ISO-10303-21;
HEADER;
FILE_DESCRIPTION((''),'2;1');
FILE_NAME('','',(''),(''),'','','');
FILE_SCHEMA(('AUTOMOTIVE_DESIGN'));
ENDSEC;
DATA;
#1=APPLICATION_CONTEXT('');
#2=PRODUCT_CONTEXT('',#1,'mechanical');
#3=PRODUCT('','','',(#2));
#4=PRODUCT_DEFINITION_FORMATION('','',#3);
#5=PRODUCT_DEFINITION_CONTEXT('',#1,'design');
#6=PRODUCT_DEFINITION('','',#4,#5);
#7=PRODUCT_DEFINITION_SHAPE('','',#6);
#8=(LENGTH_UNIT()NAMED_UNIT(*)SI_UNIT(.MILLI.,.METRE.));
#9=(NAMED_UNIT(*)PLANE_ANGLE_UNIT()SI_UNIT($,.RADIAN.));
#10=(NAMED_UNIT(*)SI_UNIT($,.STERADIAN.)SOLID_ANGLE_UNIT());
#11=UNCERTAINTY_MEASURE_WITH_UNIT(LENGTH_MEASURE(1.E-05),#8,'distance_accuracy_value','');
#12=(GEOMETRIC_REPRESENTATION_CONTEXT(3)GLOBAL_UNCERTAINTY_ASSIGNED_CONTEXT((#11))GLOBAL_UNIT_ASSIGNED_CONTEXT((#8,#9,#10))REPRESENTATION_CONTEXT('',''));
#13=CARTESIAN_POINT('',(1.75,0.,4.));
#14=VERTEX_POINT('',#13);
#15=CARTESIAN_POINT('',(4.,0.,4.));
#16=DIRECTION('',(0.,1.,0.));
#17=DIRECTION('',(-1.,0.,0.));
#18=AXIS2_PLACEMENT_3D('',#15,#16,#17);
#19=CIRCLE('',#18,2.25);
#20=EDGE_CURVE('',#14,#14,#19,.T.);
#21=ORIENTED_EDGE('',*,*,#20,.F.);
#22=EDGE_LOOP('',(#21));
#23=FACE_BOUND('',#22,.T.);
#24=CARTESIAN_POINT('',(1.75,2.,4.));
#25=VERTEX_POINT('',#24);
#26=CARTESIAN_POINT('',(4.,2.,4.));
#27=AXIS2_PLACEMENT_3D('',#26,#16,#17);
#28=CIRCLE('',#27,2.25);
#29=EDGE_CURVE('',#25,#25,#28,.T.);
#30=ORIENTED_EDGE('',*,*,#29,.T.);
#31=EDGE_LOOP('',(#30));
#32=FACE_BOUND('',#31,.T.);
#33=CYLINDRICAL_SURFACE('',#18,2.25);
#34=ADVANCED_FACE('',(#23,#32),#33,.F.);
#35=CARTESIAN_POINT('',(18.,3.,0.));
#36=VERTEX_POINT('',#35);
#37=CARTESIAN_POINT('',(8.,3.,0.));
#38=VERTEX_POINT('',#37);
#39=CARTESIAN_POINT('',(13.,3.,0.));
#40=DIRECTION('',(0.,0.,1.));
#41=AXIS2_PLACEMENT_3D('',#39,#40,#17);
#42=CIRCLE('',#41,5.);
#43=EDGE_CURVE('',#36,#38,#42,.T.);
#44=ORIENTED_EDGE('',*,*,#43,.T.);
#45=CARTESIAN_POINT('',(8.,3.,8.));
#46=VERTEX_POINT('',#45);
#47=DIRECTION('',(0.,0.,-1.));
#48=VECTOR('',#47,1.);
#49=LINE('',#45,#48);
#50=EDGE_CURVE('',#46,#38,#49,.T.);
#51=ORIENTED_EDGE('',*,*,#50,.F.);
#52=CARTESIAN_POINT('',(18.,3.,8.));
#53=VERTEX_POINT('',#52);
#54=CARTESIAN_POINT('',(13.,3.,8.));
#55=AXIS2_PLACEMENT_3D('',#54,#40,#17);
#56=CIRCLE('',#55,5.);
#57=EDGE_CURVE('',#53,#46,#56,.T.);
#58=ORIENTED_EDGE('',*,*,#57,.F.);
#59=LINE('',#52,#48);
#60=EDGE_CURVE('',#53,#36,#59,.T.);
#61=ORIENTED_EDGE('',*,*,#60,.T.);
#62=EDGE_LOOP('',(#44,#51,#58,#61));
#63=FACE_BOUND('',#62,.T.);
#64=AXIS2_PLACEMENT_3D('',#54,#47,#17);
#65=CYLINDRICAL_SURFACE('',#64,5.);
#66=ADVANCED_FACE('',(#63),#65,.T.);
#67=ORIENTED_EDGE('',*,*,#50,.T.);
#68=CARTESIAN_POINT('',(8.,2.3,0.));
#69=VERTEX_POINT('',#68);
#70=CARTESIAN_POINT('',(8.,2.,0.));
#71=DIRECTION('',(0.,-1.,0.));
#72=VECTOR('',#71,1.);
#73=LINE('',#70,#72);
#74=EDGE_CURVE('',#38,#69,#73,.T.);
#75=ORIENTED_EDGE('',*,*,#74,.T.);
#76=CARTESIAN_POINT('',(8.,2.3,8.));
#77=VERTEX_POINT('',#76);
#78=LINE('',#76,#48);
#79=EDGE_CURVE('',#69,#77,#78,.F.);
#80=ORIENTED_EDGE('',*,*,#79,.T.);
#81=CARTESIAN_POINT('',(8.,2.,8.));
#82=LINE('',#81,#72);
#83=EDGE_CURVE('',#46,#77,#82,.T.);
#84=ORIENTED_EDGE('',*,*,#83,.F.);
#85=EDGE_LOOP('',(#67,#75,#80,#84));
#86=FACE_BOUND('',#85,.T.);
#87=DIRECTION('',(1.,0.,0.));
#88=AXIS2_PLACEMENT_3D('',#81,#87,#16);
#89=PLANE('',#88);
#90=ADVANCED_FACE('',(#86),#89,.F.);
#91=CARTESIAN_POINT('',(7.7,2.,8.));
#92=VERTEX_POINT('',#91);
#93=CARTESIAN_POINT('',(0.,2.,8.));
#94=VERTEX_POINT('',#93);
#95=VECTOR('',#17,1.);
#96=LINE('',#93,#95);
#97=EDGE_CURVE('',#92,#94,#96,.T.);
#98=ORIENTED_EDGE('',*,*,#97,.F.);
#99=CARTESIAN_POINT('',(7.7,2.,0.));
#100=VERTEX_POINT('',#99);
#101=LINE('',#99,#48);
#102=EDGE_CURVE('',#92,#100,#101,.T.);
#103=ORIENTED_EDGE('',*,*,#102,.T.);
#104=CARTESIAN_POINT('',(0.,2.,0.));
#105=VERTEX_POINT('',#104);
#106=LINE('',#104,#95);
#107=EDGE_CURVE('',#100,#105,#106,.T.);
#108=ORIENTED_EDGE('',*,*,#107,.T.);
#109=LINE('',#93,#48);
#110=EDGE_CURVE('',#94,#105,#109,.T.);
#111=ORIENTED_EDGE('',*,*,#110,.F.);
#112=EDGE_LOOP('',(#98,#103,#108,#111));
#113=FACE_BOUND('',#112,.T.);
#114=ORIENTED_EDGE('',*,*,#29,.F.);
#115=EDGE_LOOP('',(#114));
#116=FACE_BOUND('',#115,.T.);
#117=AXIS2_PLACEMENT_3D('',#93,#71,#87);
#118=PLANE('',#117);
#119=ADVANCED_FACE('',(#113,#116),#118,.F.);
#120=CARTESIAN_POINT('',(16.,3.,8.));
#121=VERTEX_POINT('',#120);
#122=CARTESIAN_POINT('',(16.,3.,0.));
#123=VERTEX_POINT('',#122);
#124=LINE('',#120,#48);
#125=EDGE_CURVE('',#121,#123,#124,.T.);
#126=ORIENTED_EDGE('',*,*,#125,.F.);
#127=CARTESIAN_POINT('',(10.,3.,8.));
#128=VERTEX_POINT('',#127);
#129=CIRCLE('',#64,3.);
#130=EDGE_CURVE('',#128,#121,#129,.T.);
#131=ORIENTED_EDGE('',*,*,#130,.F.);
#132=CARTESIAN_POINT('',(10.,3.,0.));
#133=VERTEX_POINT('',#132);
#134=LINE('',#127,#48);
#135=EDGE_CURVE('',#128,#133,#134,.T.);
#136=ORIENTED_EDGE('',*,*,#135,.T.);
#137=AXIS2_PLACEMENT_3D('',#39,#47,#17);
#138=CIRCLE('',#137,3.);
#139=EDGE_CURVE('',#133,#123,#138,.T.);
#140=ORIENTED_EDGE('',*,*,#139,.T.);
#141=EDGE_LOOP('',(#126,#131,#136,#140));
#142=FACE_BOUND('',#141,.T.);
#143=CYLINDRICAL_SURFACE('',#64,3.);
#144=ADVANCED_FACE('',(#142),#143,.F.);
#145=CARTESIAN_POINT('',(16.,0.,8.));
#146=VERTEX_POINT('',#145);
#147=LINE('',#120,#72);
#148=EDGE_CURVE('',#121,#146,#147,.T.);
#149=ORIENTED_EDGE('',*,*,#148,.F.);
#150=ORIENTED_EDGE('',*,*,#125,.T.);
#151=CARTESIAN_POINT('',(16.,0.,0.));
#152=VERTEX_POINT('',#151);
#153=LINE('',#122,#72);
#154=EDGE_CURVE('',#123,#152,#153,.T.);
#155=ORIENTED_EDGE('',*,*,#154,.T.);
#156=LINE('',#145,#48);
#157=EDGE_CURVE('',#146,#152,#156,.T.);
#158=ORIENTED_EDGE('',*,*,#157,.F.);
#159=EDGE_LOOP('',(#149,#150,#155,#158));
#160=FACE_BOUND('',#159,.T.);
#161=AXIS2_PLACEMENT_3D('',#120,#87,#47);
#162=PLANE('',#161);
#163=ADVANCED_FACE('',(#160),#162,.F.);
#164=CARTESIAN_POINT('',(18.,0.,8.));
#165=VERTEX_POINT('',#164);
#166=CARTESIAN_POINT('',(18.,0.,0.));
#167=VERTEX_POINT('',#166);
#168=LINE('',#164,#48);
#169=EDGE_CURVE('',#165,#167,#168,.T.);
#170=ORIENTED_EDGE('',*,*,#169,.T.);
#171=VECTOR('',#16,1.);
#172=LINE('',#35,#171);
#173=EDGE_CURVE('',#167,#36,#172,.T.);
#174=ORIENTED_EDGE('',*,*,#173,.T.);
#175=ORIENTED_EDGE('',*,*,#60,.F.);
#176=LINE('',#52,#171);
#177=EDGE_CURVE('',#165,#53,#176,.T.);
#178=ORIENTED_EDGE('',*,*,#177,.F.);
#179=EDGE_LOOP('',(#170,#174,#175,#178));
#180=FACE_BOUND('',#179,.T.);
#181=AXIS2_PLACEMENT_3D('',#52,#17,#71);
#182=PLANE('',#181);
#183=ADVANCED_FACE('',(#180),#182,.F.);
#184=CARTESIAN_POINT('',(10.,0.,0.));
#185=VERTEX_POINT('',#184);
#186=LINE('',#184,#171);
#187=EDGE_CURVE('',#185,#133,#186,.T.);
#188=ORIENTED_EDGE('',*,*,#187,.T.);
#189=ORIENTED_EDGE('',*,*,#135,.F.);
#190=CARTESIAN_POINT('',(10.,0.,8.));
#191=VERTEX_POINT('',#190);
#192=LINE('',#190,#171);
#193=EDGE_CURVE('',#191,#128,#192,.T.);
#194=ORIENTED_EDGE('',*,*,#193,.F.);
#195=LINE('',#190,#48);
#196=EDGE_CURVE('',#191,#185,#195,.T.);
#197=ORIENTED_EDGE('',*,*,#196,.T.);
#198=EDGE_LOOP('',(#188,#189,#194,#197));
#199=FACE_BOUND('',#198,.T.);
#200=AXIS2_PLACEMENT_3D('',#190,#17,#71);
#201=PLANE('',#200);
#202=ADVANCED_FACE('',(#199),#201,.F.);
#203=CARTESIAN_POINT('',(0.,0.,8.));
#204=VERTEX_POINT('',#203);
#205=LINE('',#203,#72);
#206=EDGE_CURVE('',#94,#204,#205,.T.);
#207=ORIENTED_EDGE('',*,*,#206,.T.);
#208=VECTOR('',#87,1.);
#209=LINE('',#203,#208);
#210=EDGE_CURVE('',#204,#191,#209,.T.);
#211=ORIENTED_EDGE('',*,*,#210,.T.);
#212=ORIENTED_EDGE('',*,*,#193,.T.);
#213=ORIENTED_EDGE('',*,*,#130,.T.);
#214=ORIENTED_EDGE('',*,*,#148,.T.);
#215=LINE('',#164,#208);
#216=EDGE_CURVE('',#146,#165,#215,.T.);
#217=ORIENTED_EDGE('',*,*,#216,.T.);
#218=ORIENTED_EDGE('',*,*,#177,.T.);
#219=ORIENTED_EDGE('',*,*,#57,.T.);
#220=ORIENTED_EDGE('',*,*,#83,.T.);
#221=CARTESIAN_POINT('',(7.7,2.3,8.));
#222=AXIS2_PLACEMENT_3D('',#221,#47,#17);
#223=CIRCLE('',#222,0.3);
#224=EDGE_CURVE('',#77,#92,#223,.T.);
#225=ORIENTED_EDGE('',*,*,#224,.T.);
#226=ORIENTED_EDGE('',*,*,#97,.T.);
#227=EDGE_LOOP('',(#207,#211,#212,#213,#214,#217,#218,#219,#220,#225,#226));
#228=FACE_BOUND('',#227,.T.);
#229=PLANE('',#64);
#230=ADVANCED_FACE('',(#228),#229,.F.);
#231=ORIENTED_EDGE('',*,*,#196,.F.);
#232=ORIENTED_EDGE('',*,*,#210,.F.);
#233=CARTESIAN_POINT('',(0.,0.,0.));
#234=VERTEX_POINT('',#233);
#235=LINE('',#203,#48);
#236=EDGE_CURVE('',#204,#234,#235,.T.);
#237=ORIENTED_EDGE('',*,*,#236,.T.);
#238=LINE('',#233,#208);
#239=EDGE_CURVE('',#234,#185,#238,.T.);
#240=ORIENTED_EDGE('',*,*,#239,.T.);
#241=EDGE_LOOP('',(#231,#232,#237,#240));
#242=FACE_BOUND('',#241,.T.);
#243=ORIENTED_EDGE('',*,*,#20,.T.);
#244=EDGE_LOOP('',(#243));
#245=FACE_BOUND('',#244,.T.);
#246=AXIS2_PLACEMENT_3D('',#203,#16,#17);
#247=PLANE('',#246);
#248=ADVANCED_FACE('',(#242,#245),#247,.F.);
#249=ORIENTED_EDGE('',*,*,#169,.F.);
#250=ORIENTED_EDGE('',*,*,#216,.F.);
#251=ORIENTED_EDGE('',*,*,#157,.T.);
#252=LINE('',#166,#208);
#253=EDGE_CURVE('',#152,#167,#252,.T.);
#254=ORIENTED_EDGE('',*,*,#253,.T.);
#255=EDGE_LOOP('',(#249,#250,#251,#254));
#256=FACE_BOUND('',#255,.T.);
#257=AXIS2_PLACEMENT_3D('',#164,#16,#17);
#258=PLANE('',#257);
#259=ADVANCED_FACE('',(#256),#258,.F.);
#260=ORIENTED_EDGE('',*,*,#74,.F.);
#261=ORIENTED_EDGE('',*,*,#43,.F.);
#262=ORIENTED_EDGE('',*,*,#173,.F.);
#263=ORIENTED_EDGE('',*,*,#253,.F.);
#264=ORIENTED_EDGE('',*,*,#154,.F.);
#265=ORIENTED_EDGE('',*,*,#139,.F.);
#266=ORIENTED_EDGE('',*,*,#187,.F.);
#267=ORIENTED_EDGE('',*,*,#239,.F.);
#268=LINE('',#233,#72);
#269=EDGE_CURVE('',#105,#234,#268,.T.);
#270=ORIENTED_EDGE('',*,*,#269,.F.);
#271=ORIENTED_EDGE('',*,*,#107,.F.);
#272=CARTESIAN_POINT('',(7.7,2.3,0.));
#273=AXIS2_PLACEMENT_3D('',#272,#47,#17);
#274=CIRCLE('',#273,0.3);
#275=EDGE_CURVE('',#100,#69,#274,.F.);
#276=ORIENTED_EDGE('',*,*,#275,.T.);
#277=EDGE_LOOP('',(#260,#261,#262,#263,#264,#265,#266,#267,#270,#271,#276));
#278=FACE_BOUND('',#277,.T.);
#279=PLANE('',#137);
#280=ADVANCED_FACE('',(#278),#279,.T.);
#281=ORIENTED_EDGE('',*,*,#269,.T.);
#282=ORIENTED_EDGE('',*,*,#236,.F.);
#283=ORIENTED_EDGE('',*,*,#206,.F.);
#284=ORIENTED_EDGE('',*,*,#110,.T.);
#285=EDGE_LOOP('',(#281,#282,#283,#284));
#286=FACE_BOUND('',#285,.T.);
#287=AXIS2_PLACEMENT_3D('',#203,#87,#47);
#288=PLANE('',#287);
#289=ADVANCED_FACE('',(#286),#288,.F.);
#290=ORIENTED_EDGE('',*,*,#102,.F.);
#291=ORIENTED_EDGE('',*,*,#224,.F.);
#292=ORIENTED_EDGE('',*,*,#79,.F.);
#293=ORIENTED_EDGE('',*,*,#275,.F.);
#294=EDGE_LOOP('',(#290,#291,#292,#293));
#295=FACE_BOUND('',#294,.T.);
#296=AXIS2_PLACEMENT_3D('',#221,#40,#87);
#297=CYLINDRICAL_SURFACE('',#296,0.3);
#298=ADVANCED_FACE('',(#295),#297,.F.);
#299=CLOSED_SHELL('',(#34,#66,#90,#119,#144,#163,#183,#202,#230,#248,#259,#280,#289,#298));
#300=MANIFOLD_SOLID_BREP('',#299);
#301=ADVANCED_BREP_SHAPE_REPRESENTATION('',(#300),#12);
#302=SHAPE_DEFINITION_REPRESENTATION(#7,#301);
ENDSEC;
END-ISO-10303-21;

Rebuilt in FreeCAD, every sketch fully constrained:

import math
import FreeCAD as App
import Part
import Sketcher

V = App.Vector


def edges_at(feature, points):
    """Names of the edges that pass closest to the given points."""
    edges = feature.Shape.Edges
    near = lambda p: min(range(len(edges)), key=lambda i: edges[i].distToShape(Part.Vertex(*p))[0])
    return sorted({f"Edge{near(p) + 1}" for p in points})

doc = App.newDocument("Part")
body = doc.addObject("PartDesign::Body", "Body")

# Sketch on XY plane
sketch1 = body.newObject("Sketcher::SketchObject", "Sketch")
sketch1.AttachmentSupport = (doc.getObject("XY_Plane"), [""])
sketch1.MapMode = "FlatFace"
sketch1.addGeometry(Part.LineSegment(V(0, 0, 0), V(10, 0, 0)), False)
sketch1.addGeometry(Part.LineSegment(V(10, 0, 0), V(10, 3, 0)), False)
sketch1.addGeometry(Part.ArcOfCircle(Part.Circle(V(13, 3, 0), V(0, 0, 1), 3), math.radians(0), math.radians(180)), False)
sketch1.addGeometry(Part.LineSegment(V(16, 3, 0), V(16, 0, 0)), False)
sketch1.addGeometry(Part.LineSegment(V(16, 0, 0), V(18, 0, 0)), False)
sketch1.addGeometry(Part.LineSegment(V(18, 0, 0), V(18, 3, 0)), False)
sketch1.addGeometry(Part.ArcOfCircle(Part.Circle(V(13, 3, 0), V(0, 0, 1), 5), math.radians(0), math.radians(180)), False)
sketch1.addGeometry(Part.LineSegment(V(8, 3, 0), V(8, 2, 0)), False)
sketch1.addGeometry(Part.LineSegment(V(8, 2, 0), V(0, 2, 0)), False)
sketch1.addGeometry(Part.LineSegment(V(0, 2, 0), V(0, 0, 0)), False)
sketch1.addConstraint(Sketcher.Constraint("Coincident", 0, 2, 1, 1))
sketch1.addConstraint(Sketcher.Constraint("Tangent", 1, 2, 2, 2))
sketch1.addConstraint(Sketcher.Constraint("Tangent", 2, 1, 3, 1))
sketch1.addConstraint(Sketcher.Constraint("Coincident", 3, 2, 4, 1))
sketch1.addConstraint(Sketcher.Constraint("Coincident", 4, 2, 5, 1))
sketch1.addConstraint(Sketcher.Constraint("Tangent", 5, 2, 6, 1))
sketch1.addConstraint(Sketcher.Constraint("Tangent", 6, 2, 7, 1))
sketch1.addConstraint(Sketcher.Constraint("Coincident", 7, 2, 8, 1))
sketch1.addConstraint(Sketcher.Constraint("Coincident", 8, 2, 9, 1))
sketch1.addConstraint(Sketcher.Constraint("Coincident", 9, 2, 0, 1))
sketch1.addConstraint(Sketcher.Constraint("Horizontal", 0))
sketch1.addConstraint(Sketcher.Constraint("Vertical", 1))
sketch1.addConstraint(Sketcher.Constraint("Vertical", 3))
sketch1.addConstraint(Sketcher.Constraint("Horizontal", 4))
sketch1.addConstraint(Sketcher.Constraint("Vertical", 5))
sketch1.addConstraint(Sketcher.Constraint("Vertical", 7))
sketch1.addConstraint(Sketcher.Constraint("Horizontal", 8))
sketch1.addConstraint(Sketcher.Constraint("Vertical", 9))
sketch1.addConstraint(Sketcher.Constraint("Coincident", 9, 2, -1, 1))
sketch1.addConstraint(Sketcher.Constraint("Coincident", 6, 3, 2, 3))
sketch1.addConstraint(Sketcher.Constraint("PointOnObject", 3, 2, -1))
sketch1.addConstraint(Sketcher.Constraint("Equal", 4, 9))
sketch1.addConstraint(Sketcher.Constraint("Radius", 2, 3.0))
sketch1.addConstraint(Sketcher.Constraint("Radius", 6, 5.0))
sketch1.addConstraint(Sketcher.Constraint("DistanceX", 0, 1, 0, 2, 10.0))
sketch1.addConstraint(Sketcher.Constraint("DistanceY", 1, 1, 1, 2, 3.0))
pad1 = body.newObject("PartDesign::Pad", "Pad")
pad1.Profile = sketch1
pad1.Length = 8

# Sketch on XZ plane
sketch2 = body.newObject("Sketcher::SketchObject", "Sketch001")
sketch2.AttachmentSupport = (doc.getObject("XZ_Plane"), [""])
sketch2.MapMode = "FlatFace"
sketch2.AttachmentOffset = App.Placement(V(0, 0, -2), App.Rotation())
sketch2.addGeometry(Part.Circle(V(4, 4, 0), V(0, 0, 1), 2.2), False)
sketch2.addConstraint(Sketcher.Constraint("Diameter", 0, 4.5))
sketch2.addConstraint(Sketcher.Constraint("DistanceX", -1, 1, 0, 3, 4.0))
sketch2.addConstraint(Sketcher.Constraint("DistanceY", -1, 1, 0, 3, 4.0))
pocket1 = body.newObject("PartDesign::Pocket", "Pocket")
pocket1.Profile = sketch2
pocket1.Type = "ThroughAll"
pocket1.Reversed = True
doc.recompute()

fillet = body.newObject("PartDesign::Fillet", "Fillet")
fillet.Base = (pocket1, edges_at(pocket1, [(8, 2, 4)]))
fillet.Radius = 0.3

doc.recompute()
